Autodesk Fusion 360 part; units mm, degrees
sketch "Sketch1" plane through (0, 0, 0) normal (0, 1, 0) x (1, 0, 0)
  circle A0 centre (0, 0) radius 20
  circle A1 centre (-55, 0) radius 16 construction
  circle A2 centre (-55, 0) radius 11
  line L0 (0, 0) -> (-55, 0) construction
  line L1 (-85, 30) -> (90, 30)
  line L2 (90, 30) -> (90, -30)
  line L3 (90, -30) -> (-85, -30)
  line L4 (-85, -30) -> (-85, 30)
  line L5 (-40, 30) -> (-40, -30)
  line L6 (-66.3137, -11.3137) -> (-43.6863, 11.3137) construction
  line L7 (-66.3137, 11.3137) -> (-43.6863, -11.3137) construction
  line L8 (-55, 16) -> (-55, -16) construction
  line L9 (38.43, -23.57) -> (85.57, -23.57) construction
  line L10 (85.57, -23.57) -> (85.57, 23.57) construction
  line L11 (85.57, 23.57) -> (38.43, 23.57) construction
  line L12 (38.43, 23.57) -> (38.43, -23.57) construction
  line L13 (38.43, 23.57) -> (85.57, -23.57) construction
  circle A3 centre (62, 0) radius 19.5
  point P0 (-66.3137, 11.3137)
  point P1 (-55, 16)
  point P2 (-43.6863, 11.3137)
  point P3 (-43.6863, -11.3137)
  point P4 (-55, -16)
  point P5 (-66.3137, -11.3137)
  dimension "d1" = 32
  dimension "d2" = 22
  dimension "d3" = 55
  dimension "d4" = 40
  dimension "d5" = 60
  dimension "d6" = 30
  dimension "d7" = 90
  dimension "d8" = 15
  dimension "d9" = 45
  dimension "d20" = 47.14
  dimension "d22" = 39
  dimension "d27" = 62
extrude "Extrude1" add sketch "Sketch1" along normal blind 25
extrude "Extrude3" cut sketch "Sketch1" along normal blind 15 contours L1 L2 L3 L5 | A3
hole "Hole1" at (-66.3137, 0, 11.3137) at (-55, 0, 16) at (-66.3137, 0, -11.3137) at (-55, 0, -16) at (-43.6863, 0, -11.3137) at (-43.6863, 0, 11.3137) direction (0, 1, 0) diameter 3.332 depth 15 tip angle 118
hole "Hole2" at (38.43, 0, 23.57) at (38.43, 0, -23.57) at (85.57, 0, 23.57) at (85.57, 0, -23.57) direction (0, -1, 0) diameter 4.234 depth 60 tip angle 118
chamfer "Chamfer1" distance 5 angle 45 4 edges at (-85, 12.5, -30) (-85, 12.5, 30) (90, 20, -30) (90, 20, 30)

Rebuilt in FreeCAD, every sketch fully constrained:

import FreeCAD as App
import Part
import Sketcher

V = App.Vector
Q = App.Units.Quantity


def edges_at(feature, points):
    """Names of the edges that pass closest to the given points."""
    edges = feature.Shape.Edges
    near = lambda p: min(range(len(edges)), key=lambda i: edges[i].distToShape(Part.Vertex(*p))[0])
    return sorted({f"Edge{near(p) + 1}" for p in points})

doc = App.newDocument("Part")
body = doc.addObject("PartDesign::Body", "Body")

# Sketch on XZ plane
sketch1 = doc.addObject("Sketcher::SketchObject", "Sketch")
body.addObject(sketch1)
sketch1.AttachmentSupport = (doc.XZ_Plane, [""])
sketch1.MapMode = "FlatFace"
sketch1.addGeometry(Part.LineSegment(V(-85, -30, 0), V(-85, 30, 0)), False)
sketch1.addGeometry(Part.LineSegment(V(-85, 30, 0), V(90, 30, 0)), False)
sketch1.addGeometry(Part.LineSegment(V(90, 30, 0), V(90, -30, 0)), False)
sketch1.addGeometry(Part.LineSegment(V(90, -30, 0), V(-85, -30, 0)), False)
sketch1.addGeometry(Part.Circle(V(-55, 0, 0), V(0, 0, 1), 11), False)
sketch1.addGeometry(Part.Circle(V(62, 0, 0), V(0, 0, 1), 20), False)
sketch1.addGeometry(Part.Circle(V(0, 0, 0), V(0, 0, 1), 20), False)
sketch1.addConstraint(Sketcher.Constraint("Coincident", 0, 2, 1, 1))
sketch1.addConstraint(Sketcher.Constraint("Coincident", 1, 2, 2, 1))
sketch1.addConstraint(Sketcher.Constraint("Coincident", 2, 2, 3, 1))
sketch1.addConstraint(Sketcher.Constraint("Coincident", 3, 2, 0, 1))
sketch1.addConstraint(Sketcher.Constraint("Vertical", 0))
sketch1.addConstraint(Sketcher.Constraint("Horizontal", 1))
sketch1.addConstraint(Sketcher.Constraint("Vertical", 2))
sketch1.addConstraint(Sketcher.Constraint("Horizontal", 3))
sketch1.addConstraint(Sketcher.Constraint("Coincident", 6, 3, -1, 1))
sketch1.addConstraint(Sketcher.Constraint("PointOnObject", 4, 3, -1))
sketch1.addConstraint(Sketcher.Constraint("PointOnObject", 5, 3, -1))
sketch1.addConstraint(Sketcher.Constraint("Diameter", 4, Q("22 mm")))
sketch1.addConstraint(Sketcher.Constraint("Diameter", 5, Q("39 mm")))
sketch1.addConstraint(Sketcher.Constraint("Diameter", 6, Q("40 mm")))
sketch1.addConstraint(Sketcher.Constraint("DistanceY", 0, 1, 0, 2, Q("60 mm")))
sketch1.addConstraint(Sketcher.Constraint("DistanceX", 4, 3, -1, 1, Q("55 mm")))
sketch1.addConstraint(Sketcher.Constraint("DistanceX", -1, 1, 5, 3, Q("62 mm")))
sketch1.addConstraint(Sketcher.Constraint("DistanceY", -1, 1, 0, 2, Q("30 mm")))
sketch1.addConstraint(Sketcher.Constraint("DistanceX", -1, 1, 1, 2, Q("90 mm")))
sketch1.addConstraint(Sketcher.Constraint("DistanceX", 0, 2, 4, 3, Q("30 mm")))
pad1 = doc.addObject("PartDesign::Pad", "Pad")
body.addObject(pad1)
pad1.Profile = sketch1
pad1.Length = 25
pad1.Reversed = True

# Sketch on XZ plane
sketch2 = doc.addObject("Sketcher::SketchObject", "Sketch001")
body.addObject(sketch2)
sketch2.AttachmentSupport = (doc.XZ_Plane, [""])
sketch2.MapMode = "FlatFace"
sketch2.addGeometry(Part.LineSegment(V(90, -30, 0), V(-40, -30, 0)), False)
sketch2.addGeometry(Part.LineSegment(V(-40, -30, 0), V(-40, 30, 0)), False)
sketch2.addGeometry(Part.LineSegment(V(-40, 30, 0), V(90, 30, 0)), False)
sketch2.addGeometry(Part.LineSegment(V(90, 30, 0), V(90, -30, 0)), False)
sketch2.addGeometry(Part.Circle(V(0, 0, 0), V(0, 0, 1), 20), False)
sketch2.addConstraint(Sketcher.Constraint("Coincident", 0, 2, 1, 1))
sketch2.addConstraint(Sketcher.Constraint("Coincident", 1, 2, 2, 1))
sketch2.addConstraint(Sketcher.Constraint("Coincident", 2, 2, 3, 1))
sketch2.addConstraint(Sketcher.Constraint("Coincident", 3, 2, 0, 1))
sketch2.addConstraint(Sketcher.Constraint("Horizontal", 0))
sketch2.addConstraint(Sketcher.Constraint("Vertical", 1))
sketch2.addConstraint(Sketcher.Constraint("Horizontal", 2))
sketch2.addConstraint(Sketcher.Constraint("Vertical", 3))
sketch2.addConstraint(Sketcher.Constraint("Coincident", 4, 3, -1, 1))
sketch2.addConstraint(Sketcher.Constraint("Diameter", 4, Q("40 mm")))
sketch2.addConstraint(Sketcher.Constraint("DistanceY", 1, 1, 1, 2, Q("60 mm")))
sketch2.addConstraint(Sketcher.Constraint("DistanceX", 0, 2, -1, 1, Q("40 mm")))
sketch2.addConstraint(Sketcher.Constraint("DistanceY", 0, 2, -1, 1, Q("30 mm")))
sketch2.addConstraint(Sketcher.Constraint("DistanceX", -1, 1, 2, 2, Q("90 mm")))
pocket1 = doc.addObject("PartDesign::Pocket", "Pocket")
body.addObject(pocket1)
pocket1.Profile = sketch2
pocket1.Length = 15

# Sketch on XZ plane
sketch3 = doc.addObject("Sketcher::SketchObject", "Sketch002")
body.addObject(sketch3)
sketch3.AttachmentSupport = (doc.XZ_Plane, [""])
sketch3.MapMode = "FlatFace"
sketch3.addGeometry(Part.Circle(V(-66.3, 11.3, 0), V(0, 0, 1), 1.7), False)
sketch3.addGeometry(Part.Circle(V(-55, 16, 0), V(0, 0, 1), 1.7), False)
sketch3.addGeometry(Part.Circle(V(-66.3, -11.3, 0), V(0, 0, 1), 1.7), False)
sketch3.addGeometry(Part.Circle(V(-55, -16, 0), V(0, 0, 1), 1.7), False)
sketch3.addGeometry(Part.Circle(V(-43.7, -11.3, 0), V(0, 0, 1), 1.7), False)
sketch3.addGeometry(Part.Circle(V(-43.7, 11.3, 0), V(0, 0, 1), 1.7), False)
sketch3.addConstraint(Sketcher.Constraint("Equal", 0, 1))
sketch3.addConstraint(Sketcher.Constraint("Equal", 1, 2))
sketch3.addConstraint(Sketcher.Constraint("Equal", 2, 3))
sketch3.addConstraint(Sketcher.Constraint("Equal", 3, 4))
sketch3.addConstraint(Sketcher.Constraint("Equal", 4, 5))
sketch3.addConstraint(Sketcher.Constraint("Symmetric", 0, 3, 2, 3, -1))
sketch3.addConstraint(Sketcher.Constraint("Symmetric", 1, 3, 3, 3, -1))
sketch3.addConstraint(Sketcher.Constraint("Symmetric", 4, 3, 5, 3, -1))
sketch3.addConstraint(Sketcher.Constraint("Horizontal", 2, 3, 4, 3))
sketch3.addConstraint(Sketcher.Constraint("Diameter", 0, Q("3.332 mm")))
sketch3.addConstraint(Sketcher.Constraint("DistanceX", 1, 3, -1, 1, Q("55 mm")))
sketch3.addConstraint(Sketcher.Constraint("DistanceY", -1, 1, 1, 3, Q("16 mm")))
sketch3.addConstraint(Sketcher.Constraint("DistanceX", 0, 3, -1, 1, Q("66.3137 mm")))
sketch3.addConstraint(Sketcher.Constraint("DistanceY", -1, 1, 0, 3, Q("11.3137 mm")))
sketch3.addConstraint(Sketcher.Constraint("DistanceX", 4, 3, -1, 1, Q("43.6863 mm")))
doc.recompute()
hole = doc.addObject("PartDesign::Hole", "Hole")
body.addObject(hole)
hole.Profile = sketch3
hole.ThreadType = "None"
hole.Diameter = 3.332
hole.DepthType = "Dimension"
hole.Depth = 15
hole.DrillPoint = "Angled"
hole.DrillPointAngle = 118

# Sketch on XZ plane
sketch4 = doc.addObject("Sketcher::SketchObject", "Sketch003")
body.addObject(sketch4)
sketch4.AttachmentSupport = (doc.XZ_Plane, [""])
sketch4.MapMode = "FlatFace"
sketch4.addGeometry(Part.Circle(V(38.4, 23.6, 0), V(0, 0, 1), 2.1), False)
sketch4.addGeometry(Part.Circle(V(38.4, -23.6, 0), V(0, 0, 1), 2.1), False)
sketch4.addGeometry(Part.Circle(V(85.6, 23.6, 0), V(0, 0, 1), 2.1), False)
sketch4.addGeometry(Part.Circle(V(85.6, -23.6, 0), V(0, 0, 1), 2.1), False)
sketch4.addConstraint(Sketcher.Constraint("Equal", 0, 1))
sketch4.addConstraint(Sketcher.Constraint("Equal", 1, 2))
sketch4.addConstraint(Sketcher.Constraint("Equal", 2, 3))
sketch4.addConstraint(Sketcher.Constraint("Symmetric", 0, 3, 1, 3, -1))
sketch4.addConstraint(Sketcher.Constraint("Symmetric", 2, 3, 3, 3, -1))
sketch4.addConstraint(Sketcher.Constraint("Horizontal", 0, 3, 2, 3))
sketch4.addConstraint(Sketcher.Constraint("Diameter", 0, Q("4.234 mm")))
sketch4.addConstraint(Sketcher.Constraint("DistanceX", -1, 1, 0, 3, Q("38.43 mm")))
sketch4.addConstraint(Sketcher.Constraint("DistanceY", -1, 1, 0, 3, Q("23.57 mm")))
sketch4.addConstraint(Sketcher.Constraint("DistanceX", -1, 1, 2, 3, Q("85.57 mm")))
doc.recompute()
hole2 = doc.addObject("PartDesign::Hole", "Hole001")
body.addObject(hole2)
hole2.Profile = sketch4
hole2.ThreadType = "None"
hole2.Diameter = 4.234
hole2.DepthType = "Dimension"
hole2.Depth = 60
hole2.DrillPoint = "Angled"
hole2.DrillPointAngle = 118
hole2.Reversed = True
doc.recompute()

chamfer = doc.addObject("PartDesign::Chamfer", "Chamfer")
body.addObject(chamfer)
chamfer.Base = (hole2, edges_at(hole2, [
    (-85, 12.5, -30),
    (-85, 12.5, 30),
    (90, 20, -30),
    (90, 20, 30),
]))
chamfer.Size = 5

doc.recompute()
